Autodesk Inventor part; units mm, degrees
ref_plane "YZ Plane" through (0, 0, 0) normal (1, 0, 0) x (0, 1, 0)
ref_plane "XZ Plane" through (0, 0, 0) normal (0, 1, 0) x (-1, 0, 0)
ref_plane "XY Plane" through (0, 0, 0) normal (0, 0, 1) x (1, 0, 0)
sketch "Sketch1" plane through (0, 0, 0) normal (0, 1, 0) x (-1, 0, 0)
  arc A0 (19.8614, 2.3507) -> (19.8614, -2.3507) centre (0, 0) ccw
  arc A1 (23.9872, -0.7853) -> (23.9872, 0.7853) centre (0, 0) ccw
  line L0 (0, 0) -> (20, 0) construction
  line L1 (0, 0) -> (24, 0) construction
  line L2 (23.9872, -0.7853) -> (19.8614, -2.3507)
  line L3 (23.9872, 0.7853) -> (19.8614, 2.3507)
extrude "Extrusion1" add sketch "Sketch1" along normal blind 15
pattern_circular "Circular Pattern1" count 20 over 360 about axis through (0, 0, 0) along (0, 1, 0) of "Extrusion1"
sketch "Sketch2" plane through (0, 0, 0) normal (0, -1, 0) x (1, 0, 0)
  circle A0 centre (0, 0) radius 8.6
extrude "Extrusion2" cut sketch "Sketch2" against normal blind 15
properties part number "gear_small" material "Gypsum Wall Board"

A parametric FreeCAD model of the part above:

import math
import FreeCAD as App
import Part
import Sketcher
Q = App.Units.Quantity

doc = App.newDocument("Part")
body = doc.addObject("PartDesign::Body", "Body")

# Sketch on XZ plane
sketch1 = doc.addObject("Sketcher::SketchObject", "Sketch")
body.addObject(sketch1)
sketch1.AttachmentSupport = (doc.XZ_Plane, [""])
sketch1.MapMode = "FlatFace"
sketch1.addGeometry(Part.LineSegment(App.Vector(-24, 0.8, 0), App.Vector(-19.9, 2.4, 0)), False)
sketch1.addGeometry(Part.ArcOfCircle(Part.Circle(App.Vector(0, 0, 0), App.Vector(0, 0, 1), 20), math.radians(-173), math.radians(173)), False)
sketch1.addGeometry(Part.LineSegment(App.Vector(-19.9, -2.4, 0), App.Vector(-24, -0.8, 0)), False)
sketch1.addGeometry(Part.ArcOfCircle(Part.Circle(App.Vector(0, 0, 0), App.Vector(0, 0, 1), 24), math.radians(178.12), math.radians(181.88)), False)
sketch1.addConstraint(Sketcher.Constraint("Coincident", 0, 2, 1, 2))
sketch1.addConstraint(Sketcher.Constraint("Coincident", 1, 1, 2, 1))
sketch1.addConstraint(Sketcher.Constraint("Coincident", 2, 2, 3, 2))
sketch1.addConstraint(Sketcher.Constraint("Coincident", 3, 1, 0, 1))
sketch1.addConstraint(Sketcher.Constraint("Coincident", 1, 3, -1, 1))
sketch1.addConstraint(Sketcher.Constraint("Coincident", 3, 3, -1, 1))
sketch1.addConstraint(Sketcher.Constraint("Vertical", 0, 2, 1, 1))
sketch1.addConstraint(Sketcher.Constraint("Vertical", 2, 2, 3, 1))
sketch1.addConstraint(Sketcher.Constraint("Radius", 1, Q("20 mm")))
sketch1.addConstraint(Sketcher.Constraint("Radius", 3, Q("24 mm")))
sketch1.addConstraint(Sketcher.Constraint("DistanceY", 2, 2, 0, 2, Q("3.136 mm")))
sketch1.addConstraint(Sketcher.Constraint("Distance", 0, Q("4.4128 mm")))
pad1 = doc.addObject("PartDesign::Pad", "Pad")
body.addObject(pad1)
pad1.Profile = sketch1
pad1.Length = 15
pad1.Reversed = True
doc.recompute()

polarpattern = doc.addObject("PartDesign::PolarPattern", "PolarPattern")
body.addObject(polarpattern)
polarpattern.Originals = [pad1]
polarpattern.Axis = (doc.Y_Axis, [""])
polarpattern.Angle = 360
polarpattern.Occurrences = 20
body.Tip = polarpattern

# Sketch on XZ plane
sketch2 = doc.addObject("Sketcher::SketchObject", "Sketch001")
body.addObject(sketch2)
sketch2.AttachmentSupport = (doc.XZ_Plane, [""])
sketch2.MapMode = "FlatFace"
sketch2.addGeometry(Part.Circle(App.Vector(0, 0, 0), App.Vector(0, 0, 1), 9), False)
sketch2.addConstraint(Sketcher.Constraint("Coincident", 0, 3, -1, 1))
sketch2.addConstraint(Sketcher.Constraint("Diameter", 0, Q("17.2 mm")))
pocket1 = doc.addObject("PartDesign::Pocket", "Pocket")
body.addObject(pocket1)
pocket1.Profile = sketch2
pocket1.Length = 15

doc.recompute()
